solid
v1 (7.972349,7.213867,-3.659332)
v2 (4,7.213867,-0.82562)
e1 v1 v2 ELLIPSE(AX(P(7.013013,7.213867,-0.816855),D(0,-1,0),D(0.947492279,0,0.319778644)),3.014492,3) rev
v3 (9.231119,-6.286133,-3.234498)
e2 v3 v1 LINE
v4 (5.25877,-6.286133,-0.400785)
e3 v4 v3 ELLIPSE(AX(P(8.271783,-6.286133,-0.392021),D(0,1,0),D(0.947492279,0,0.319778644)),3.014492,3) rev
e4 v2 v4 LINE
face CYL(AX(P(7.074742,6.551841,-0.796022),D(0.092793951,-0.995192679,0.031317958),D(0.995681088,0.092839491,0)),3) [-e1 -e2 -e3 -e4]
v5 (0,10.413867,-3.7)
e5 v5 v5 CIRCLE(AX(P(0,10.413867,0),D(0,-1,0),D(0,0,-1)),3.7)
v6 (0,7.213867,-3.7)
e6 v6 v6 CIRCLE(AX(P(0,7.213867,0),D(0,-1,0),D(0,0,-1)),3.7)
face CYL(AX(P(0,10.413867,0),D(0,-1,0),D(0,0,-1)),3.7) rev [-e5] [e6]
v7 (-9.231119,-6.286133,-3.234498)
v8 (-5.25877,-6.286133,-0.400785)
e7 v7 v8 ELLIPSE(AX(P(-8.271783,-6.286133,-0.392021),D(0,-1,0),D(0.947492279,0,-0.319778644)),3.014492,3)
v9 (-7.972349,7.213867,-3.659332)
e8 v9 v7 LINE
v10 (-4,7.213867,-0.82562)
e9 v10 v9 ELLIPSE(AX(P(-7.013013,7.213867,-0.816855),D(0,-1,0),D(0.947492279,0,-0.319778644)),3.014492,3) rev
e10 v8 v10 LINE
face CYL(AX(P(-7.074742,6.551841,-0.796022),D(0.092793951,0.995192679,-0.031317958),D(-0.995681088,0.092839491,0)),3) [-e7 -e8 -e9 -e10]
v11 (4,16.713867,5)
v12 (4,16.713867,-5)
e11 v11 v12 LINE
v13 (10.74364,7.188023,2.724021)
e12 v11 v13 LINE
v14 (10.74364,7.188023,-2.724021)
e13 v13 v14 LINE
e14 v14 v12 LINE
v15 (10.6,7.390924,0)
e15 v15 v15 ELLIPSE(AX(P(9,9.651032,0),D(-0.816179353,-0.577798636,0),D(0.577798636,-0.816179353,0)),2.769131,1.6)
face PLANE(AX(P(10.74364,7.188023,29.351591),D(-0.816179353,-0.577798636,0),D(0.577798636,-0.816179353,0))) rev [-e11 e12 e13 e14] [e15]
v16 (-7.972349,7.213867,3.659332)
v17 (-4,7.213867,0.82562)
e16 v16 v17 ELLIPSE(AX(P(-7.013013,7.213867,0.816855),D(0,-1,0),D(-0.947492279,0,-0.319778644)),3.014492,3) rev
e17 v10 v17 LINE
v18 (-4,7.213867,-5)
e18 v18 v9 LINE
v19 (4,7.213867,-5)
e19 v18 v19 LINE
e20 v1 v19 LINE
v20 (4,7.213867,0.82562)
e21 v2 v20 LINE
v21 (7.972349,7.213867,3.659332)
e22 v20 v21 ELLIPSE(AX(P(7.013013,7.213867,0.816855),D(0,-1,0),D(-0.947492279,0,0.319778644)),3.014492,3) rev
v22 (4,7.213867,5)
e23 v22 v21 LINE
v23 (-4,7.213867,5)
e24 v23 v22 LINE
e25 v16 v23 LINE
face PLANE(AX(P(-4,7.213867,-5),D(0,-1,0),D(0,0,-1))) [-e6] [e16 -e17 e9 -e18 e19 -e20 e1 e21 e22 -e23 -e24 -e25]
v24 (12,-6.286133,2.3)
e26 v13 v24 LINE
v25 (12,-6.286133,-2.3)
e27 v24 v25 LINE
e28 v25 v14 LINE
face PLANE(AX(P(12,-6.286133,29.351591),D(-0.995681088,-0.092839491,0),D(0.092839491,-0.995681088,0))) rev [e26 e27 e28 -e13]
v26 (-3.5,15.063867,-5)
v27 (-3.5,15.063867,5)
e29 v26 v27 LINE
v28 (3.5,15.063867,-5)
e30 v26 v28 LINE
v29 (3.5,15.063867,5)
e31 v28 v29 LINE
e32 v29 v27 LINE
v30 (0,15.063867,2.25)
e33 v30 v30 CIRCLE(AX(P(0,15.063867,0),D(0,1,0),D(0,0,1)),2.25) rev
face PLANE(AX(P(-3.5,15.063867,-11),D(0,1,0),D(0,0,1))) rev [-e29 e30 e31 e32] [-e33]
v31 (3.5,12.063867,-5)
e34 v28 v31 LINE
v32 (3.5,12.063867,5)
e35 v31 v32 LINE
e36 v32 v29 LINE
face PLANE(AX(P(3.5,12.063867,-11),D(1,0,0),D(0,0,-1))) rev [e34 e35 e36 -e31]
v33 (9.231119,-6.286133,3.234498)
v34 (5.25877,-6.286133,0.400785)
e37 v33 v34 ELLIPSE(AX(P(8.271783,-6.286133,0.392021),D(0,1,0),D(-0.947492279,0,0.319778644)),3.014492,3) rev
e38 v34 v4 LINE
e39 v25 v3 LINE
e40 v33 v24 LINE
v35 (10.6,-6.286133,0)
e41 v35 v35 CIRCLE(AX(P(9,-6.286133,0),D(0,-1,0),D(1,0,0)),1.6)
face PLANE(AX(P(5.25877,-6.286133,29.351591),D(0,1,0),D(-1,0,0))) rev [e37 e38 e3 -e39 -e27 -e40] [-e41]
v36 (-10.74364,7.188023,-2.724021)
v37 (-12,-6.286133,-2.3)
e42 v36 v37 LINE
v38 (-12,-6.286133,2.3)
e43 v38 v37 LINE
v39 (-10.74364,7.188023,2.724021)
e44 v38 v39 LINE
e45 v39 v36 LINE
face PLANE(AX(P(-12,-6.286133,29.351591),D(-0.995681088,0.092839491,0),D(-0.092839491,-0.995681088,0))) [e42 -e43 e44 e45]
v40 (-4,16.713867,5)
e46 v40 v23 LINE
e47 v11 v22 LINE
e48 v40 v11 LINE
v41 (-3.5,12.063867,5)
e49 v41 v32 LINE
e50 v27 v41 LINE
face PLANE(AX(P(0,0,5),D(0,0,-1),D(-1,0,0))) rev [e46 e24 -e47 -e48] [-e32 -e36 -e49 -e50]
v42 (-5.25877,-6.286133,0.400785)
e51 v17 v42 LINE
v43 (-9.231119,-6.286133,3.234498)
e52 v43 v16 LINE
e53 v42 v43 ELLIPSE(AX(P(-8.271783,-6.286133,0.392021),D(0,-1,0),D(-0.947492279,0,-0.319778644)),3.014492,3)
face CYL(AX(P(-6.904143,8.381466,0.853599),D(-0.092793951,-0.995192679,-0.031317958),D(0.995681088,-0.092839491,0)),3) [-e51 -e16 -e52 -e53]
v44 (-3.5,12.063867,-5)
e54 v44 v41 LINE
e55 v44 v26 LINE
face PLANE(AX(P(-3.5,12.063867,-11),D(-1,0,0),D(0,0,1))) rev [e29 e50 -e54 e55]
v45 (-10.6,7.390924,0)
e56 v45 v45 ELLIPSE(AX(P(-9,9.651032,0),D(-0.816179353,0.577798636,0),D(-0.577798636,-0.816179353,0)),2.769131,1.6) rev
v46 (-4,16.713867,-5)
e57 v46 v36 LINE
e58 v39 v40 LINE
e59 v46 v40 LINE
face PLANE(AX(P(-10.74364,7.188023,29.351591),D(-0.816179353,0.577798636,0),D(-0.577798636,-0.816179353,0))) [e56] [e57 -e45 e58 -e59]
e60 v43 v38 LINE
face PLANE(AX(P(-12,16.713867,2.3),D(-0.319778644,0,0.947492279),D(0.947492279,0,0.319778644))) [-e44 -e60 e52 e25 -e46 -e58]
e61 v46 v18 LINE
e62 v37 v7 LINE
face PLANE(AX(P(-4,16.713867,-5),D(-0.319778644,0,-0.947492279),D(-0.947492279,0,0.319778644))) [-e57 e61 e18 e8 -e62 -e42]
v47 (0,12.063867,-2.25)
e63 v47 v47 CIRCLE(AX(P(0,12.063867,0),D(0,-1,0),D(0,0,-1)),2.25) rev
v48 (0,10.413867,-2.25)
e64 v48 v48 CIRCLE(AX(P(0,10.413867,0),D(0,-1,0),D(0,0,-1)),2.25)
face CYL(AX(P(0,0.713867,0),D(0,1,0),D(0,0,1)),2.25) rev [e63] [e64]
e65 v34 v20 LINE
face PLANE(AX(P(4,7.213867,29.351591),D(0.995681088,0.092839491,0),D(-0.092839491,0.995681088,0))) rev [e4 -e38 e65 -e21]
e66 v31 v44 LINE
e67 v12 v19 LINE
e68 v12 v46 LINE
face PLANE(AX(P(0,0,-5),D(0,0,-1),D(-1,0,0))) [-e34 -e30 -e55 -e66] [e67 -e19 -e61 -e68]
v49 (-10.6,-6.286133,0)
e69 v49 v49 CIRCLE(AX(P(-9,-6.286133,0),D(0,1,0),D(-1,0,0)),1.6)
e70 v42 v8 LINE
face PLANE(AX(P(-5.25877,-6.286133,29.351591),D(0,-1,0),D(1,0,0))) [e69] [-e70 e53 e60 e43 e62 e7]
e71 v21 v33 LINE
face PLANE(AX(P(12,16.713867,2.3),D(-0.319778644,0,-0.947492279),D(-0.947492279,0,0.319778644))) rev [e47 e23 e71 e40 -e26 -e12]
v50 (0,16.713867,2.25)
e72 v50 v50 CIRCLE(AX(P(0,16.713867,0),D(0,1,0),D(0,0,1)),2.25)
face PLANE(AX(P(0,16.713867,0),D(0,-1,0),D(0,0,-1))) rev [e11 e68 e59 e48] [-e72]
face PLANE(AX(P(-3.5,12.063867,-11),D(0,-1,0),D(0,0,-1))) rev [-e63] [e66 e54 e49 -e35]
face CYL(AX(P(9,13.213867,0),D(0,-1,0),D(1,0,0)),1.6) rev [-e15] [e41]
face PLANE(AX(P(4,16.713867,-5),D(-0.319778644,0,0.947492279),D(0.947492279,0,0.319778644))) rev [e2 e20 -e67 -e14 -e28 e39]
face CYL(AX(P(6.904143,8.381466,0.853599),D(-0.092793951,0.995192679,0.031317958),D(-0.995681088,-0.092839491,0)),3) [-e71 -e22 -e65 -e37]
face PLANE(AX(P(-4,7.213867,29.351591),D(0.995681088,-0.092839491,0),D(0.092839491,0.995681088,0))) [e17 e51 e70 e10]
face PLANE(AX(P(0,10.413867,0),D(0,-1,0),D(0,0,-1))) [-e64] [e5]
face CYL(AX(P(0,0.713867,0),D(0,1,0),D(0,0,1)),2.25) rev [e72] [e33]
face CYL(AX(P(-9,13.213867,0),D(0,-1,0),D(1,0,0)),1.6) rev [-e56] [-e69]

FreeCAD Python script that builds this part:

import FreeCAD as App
import Part
import Sketcher

V = App.Vector


def edges_at(feature, points):
    """Names of the edges that pass closest to the given points."""
    edges = feature.Shape.Edges
    near = lambda p: min(range(len(edges)), key=lambda i: edges[i].distToShape(Part.Vertex(*p))[0])
    return sorted({f"Edge{near(p) + 1}" for p in points})


def add_polygon(sketch, points):
    """Adds a closed chain of lines whose ends are joined by coincident constraints."""
    first, n = sketch.GeometryCount, len(points)
    for a, b in zip(points, points[1:] + points[:1]):
        sketch.addGeometry(Part.LineSegment(App.Vector(*a, 0), App.Vector(*b, 0)), False)
    for i in range(n):
        sketch.addConstraint(Sketcher.Constraint("Coincident", first + i, 2, first + (i + 1) % n, 1))

doc = App.newDocument("Part")
body = doc.addObject("PartDesign::Body", "Body")

sketch1 = doc.addObject("Sketcher::SketchObject", "Sketch")
body.addObject(sketch1)
sketch1.AttachmentSupport = (doc.XY_Plane, [""])
sketch1.MapMode = "FlatFace"
add_polygon(sketch1, [(-4, 14), (-4, 7), (4, 7), (4, 14)])
sketch1.addConstraint([
    Sketcher.Constraint("Vertical", 0),
    Sketcher.Constraint("Horizontal", 1),
    Sketcher.Constraint("Vertical", 2),
    Sketcher.Constraint("Horizontal", 3),
    Sketcher.Constraint("DistanceX", 1, 1, 1, 2, 8.0),
    Sketcher.Constraint("DistanceY", 0, 2, 0, 1, 6.5),
    Sketcher.Constraint("DistanceX", 0, 2, -1, 1, 4.0),
    Sketcher.Constraint("DistanceY", -1, 1, 0, 2, 7.213867),
])
pad1 = doc.addObject("PartDesign::Pad", "Pad")
body.addObject(pad1)
pad1.Profile = sketch1
pad1.Type = "TwoLengths"
pad1.Length = 5
pad1.Length2 = 5

sketch2 = doc.addObject("Sketcher::SketchObject", "Sketch001")
body.addObject(sketch2)
sketch2.AttachmentSupport = (doc.XZ_Plane, [""])
sketch2.MapMode = "FlatFace"
sketch2.AttachmentOffset = App.Placement(V(0, 0, -7.213867), App.Rotation())
sketch2.addGeometry(Part.Circle(V(0, 0, 0), V(0, 0, 1), 3.7), False)
sketch2.addConstraint([
    Sketcher.Constraint("Coincident", 0, 3, -1, 1),
    Sketcher.Constraint("Diameter", 0, 7.4),
])
pocket1 = doc.addObject("PartDesign::Pocket", "Pocket")
body.addObject(pocket1)
pocket1.Profile = sketch2
pocket1.Length = 3.2

sketch3 = doc.addObject("Sketcher::SketchObject", "Sketch002")
body.addObject(sketch3)
sketch3.AttachmentSupport = (doc.XZ_Plane, [""])
sketch3.MapMode = "FlatFace"
sketch3.AttachmentOffset = App.Placement(V(0, 0, -13.713867), App.Rotation())
add_polygon(sketch3, [(-4, -5), (-4, 5), (4, 5), (4, -5)])
sketch3.addConstraint([
    Sketcher.Constraint("Vertical", 0),
    Sketcher.Constraint("Horizontal", 1),
    Sketcher.Constraint("Vertical", 2),
    Sketcher.Constraint("Horizontal", 3),
    Sketcher.Constraint("Symmetric", 0, 2, 2, 2, -1, 1),
    Sketcher.Constraint("DistanceX", 1, 1, 1, 2, 8.0),
    Sketcher.Constraint("DistanceY", 0, 1, 0, 2, 10.0),
])
pad2 = doc.addObject("PartDesign::Pad", "Pad001")
body.addObject(pad2)
pad2.Profile = sketch3
pad2.Length = 3
pad2.Reversed = True

sketch4 = doc.addObject("Sketcher::SketchObject", "Sketch003")
body.addObject(sketch4)
sketch4.AttachmentSupport = (doc.XZ_Plane, [""])
sketch4.MapMode = "FlatFace"
sketch4.AttachmentOffset = App.Placement(V(0, 0, -16.713867), App.Rotation())
sketch4.addGeometry(Part.Circle(V(0, 0, 0), V(0, 0, 1), 2.2), False)
sketch4.addConstraint([
    Sketcher.Constraint("Coincident", 0, 3, -1, 1),
    Sketcher.Constraint("Diameter", 0, 4.5),
])
pocket2 = doc.addObject("PartDesign::Pocket", "Pocket001")
body.addObject(pocket2)
pocket2.Profile = sketch4
pocket2.Length = 16
pocket2.Reversed = True

sketch5 = doc.addObject("Sketcher::SketchObject", "Sketch004")
body.addObject(sketch5)
sketch5.AttachmentSupport = (doc.XY_Plane, [""])
sketch5.MapMode = "FlatFace"
sketch5.AttachmentOffset = App.Placement(V(0, 0, 5), App.Rotation())
add_polygon(sketch5, [(-3.5, 15.1), (-3.5, 12.1), (3.5, 12.1), (3.5, 15.1)])
sketch5.addConstraint([
    Sketcher.Constraint("Vertical", 0),
    Sketcher.Constraint("Horizontal", 1),
    Sketcher.Constraint("Vertical", 2),
    Sketcher.Constraint("Horizontal", 3),
    Sketcher.Constraint("DistanceX", 1, 1, 1, 2, 7.0),
    Sketcher.Constraint("DistanceY", 0, 2, 0, 1, 3.0),
    Sketcher.Constraint("DistanceX", 0, 2, -1, 1, 3.5),
    Sketcher.Constraint("DistanceY", -1, 1, 0, 2, 12.063867),
])
pocket3 = doc.addObject("PartDesign::Pocket", "Pocket002")
body.addObject(pocket3)
pocket3.Profile = sketch5
pocket3.Length = 16

sketch6 = doc.addObject("Sketcher::SketchObject", "Sketch005")
body.addObject(sketch6)
sketch6.AttachmentSupport = (doc.XY_Plane, [""])
sketch6.MapMode = "FlatFace"
sketch6.AttachmentOffset = App.Placement(V(0, 0, -5), App.Rotation())
add_polygon(sketch6, [(12, -6), (11, 7), (4, 17), (4, 7), (5, -6)])
sketch6.addConstraint([
    Sketcher.Constraint("Vertical", 2),
    Sketcher.Constraint("Horizontal", 4),
    Sketcher.Constraint("Parallel", 0, 3),
    Sketcher.Constraint("DistanceY", 2, 2, 2, 1, 9.5),
    Sketcher.Constraint("DistanceX", -1, 1, 1, 2, 4.0),
    Sketcher.Constraint("DistanceX", -1, 1, 4, 2, 12.0),
    Sketcher.Constraint("DistanceY", 3, 2, 1, 2, 23.0),
    Sketcher.Constraint("Distance", 0, 13.532602),
    Sketcher.Constraint("DistanceX", 4, 1, 4, 2, 6.74123),
    Sketcher.Constraint("DistanceY", -1, 1, 0, 2, 7.188023),
])
pad3 = doc.addObject("PartDesign::Pad", "Pad002")
body.addObject(pad3)
pad3.Profile = sketch6
pad3.Length = 10

sketch7 = doc.addObject("Sketcher::SketchObject", "Sketch006")
body.addObject(sketch7)
sketch7.AttachmentSupport = (doc.XZ_Plane, [""])
sketch7.MapMode = "FlatFace"
sketch7.AttachmentOffset = App.Placement(V(0, 0, 6.286133), App.Rotation())
sketch7.addGeometry(Part.Circle(V(9, 0, 0), V(0, 0, 1), 1.6), False)
sketch7.addConstraint([
    Sketcher.Constraint("PointOnObject", 0, 3, -1),
    Sketcher.Constraint("Diameter", 0, 3.2),
    Sketcher.Constraint("DistanceX", -1, 1, 0, 3, 9.0),
])
pocket4 = doc.addObject("PartDesign::Pocket", "Pocket003")
body.addObject(pocket4)
pocket4.Profile = sketch7
pocket4.Length = 19.5

sketch8 = doc.addObject("Sketcher::SketchObject", "Sketch007")
body.addObject(sketch8)
sketch8.AttachmentSupport = (doc.XZ_Plane, [""])
sketch8.MapMode = "FlatFace"
sketch8.AttachmentOffset = App.Placement(V(0, 0, 6.286133), App.Rotation())
add_polygon(sketch8, [(12, 2.3), (12, 5), (4, 5)])
add_polygon(sketch8, [(12, -5), (12, -2.3), (4, -5)])
sketch8.addConstraint([
    Sketcher.Constraint("Vertical", 0),
    Sketcher.Constraint("Horizontal", 1),
    Sketcher.Constraint("Vertical", 3),
    Sketcher.Constraint("Horizontal", 5),
    Sketcher.Constraint("Symmetric", 2, 2, 3, 2, -1),
    Sketcher.Constraint("Symmetric", 1, 2, 4, 2, -1),
    Sketcher.Constraint("DistanceX", 1, 2, 1, 1, 8.0),
    Sketcher.Constraint("DistanceY", 0, 1, 0, 2, 2.7),
    Sketcher.Constraint("DistanceX", -1, 1, 0, 2, 12.0),
    Sketcher.Constraint("DistanceY", -1, 1, 0, 2, 5.0),
])
pocket5 = doc.addObject("PartDesign::Pocket", "Pocket004")
body.addObject(pocket5)
pocket5.Profile = sketch8
pocket5.Type = "ThroughAll"
doc.recompute()

mirrored = doc.addObject("PartDesign::Mirrored", "Mirrored")
body.addObject(mirrored)
mirrored.Originals = [pad3, pocket4, pocket5]
mirrored.MirrorPlane = (doc.YZ_Plane, [""])
body.Tip = mirrored
doc.recompute()

fillet = doc.addObject("PartDesign::Fillet", "Fillet")
body.addObject(fillet)
fillet.Base = (mirrored, edges_at(mirrored, [
    (-4.629, 0.464, -4.788),
    (-4.629, 0.464, 4.788),
    (4.629, 0.464, 4.788),
    (4.629, 0.464, -4.788),
]))
fillet.Radius = 3

doc.recompute()
